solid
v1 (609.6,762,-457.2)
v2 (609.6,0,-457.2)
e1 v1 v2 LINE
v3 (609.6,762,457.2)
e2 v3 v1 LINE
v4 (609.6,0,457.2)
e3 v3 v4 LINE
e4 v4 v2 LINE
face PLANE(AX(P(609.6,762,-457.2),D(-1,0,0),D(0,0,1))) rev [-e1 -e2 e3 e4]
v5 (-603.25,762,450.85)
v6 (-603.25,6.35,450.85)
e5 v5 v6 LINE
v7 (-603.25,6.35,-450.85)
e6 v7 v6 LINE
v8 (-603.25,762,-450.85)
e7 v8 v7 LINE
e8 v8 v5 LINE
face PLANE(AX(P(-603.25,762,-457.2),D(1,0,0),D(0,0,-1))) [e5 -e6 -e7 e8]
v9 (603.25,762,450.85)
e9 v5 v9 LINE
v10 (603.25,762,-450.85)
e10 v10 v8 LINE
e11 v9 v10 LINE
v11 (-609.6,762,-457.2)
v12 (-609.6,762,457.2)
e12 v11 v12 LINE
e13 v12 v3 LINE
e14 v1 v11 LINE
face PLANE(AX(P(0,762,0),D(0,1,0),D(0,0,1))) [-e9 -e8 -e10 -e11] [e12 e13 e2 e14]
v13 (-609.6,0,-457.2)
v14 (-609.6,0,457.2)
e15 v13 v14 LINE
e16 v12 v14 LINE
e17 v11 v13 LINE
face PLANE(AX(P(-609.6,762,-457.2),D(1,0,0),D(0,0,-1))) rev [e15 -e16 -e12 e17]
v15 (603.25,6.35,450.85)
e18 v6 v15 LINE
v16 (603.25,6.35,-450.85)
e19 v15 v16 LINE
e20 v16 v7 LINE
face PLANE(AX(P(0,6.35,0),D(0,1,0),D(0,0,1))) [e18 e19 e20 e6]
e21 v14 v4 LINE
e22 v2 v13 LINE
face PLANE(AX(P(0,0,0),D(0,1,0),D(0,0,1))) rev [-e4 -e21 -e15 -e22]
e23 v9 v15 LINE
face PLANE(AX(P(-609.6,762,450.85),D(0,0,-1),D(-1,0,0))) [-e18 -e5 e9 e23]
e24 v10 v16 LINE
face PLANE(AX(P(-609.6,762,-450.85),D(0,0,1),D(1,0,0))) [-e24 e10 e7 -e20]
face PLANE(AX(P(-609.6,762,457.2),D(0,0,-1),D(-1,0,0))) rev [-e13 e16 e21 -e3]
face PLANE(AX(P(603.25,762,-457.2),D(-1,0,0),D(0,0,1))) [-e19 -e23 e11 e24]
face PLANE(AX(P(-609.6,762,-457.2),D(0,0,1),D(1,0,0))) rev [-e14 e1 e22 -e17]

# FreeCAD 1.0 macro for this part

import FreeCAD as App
import Part
import Sketcher

V = App.Vector
Q = App.Units.Quantity


def faces_at(feature, points):
    """Names of the faces that lie closest to the given points."""
    faces = feature.Shape.Faces
    near = lambda p: min(range(len(faces)), key=lambda i: faces[i].distToShape(Part.Vertex(*p))[0])
    return sorted({f"Face{near(p) + 1}" for p in points})

doc = App.newDocument("Part")
params = doc.addObject("Spreadsheet::Sheet", "Params")
for row, (alias, value) in enumerate([
    ("sketch1_width", "48 in"),
    ("sketch1_height", "36 in"),
    ("pad1_length", "30 in"),
    ("thickness_wall", "0.25 in"),
], start=1):
    params.set(f"A{row}", alias)
    params.set(f"B{row}", "=" + value)
    params.setAlias(f"B{row}", alias)

body = doc.addObject("PartDesign::Body", "Body")

sketch1 = body.newObject("Sketcher::SketchObject", "Sketch")
sketch1.AttachmentSupport = (doc.getObject("XZ_Plane"), [""])
sketch1.MapMode = "FlatFace"
sketch1.addGeometry(Part.LineSegment(V(-610, -457, 0), V(-610, 457, 0)), False)
sketch1.addGeometry(Part.LineSegment(V(-610, 457, 0), V(610, 457, 0)), False)
sketch1.addGeometry(Part.LineSegment(V(610, 457, 0), V(610, -457, 0)), False)
sketch1.addGeometry(Part.LineSegment(V(610, -457, 0), V(-610, -457, 0)), False)
sketch1.addConstraint(Sketcher.Constraint("Coincident", 0, 2, 1, 1))
sketch1.addConstraint(Sketcher.Constraint("Coincident", 1, 2, 2, 1))
sketch1.addConstraint(Sketcher.Constraint("Coincident", 2, 2, 3, 1))
sketch1.addConstraint(Sketcher.Constraint("Coincident", 3, 2, 0, 1))
sketch1.addConstraint(Sketcher.Constraint("Vertical", 0))
sketch1.addConstraint(Sketcher.Constraint("Horizontal", 1))
sketch1.addConstraint(Sketcher.Constraint("Vertical", 2))
sketch1.addConstraint(Sketcher.Constraint("Horizontal", 3))
sketch1.addConstraint(Sketcher.Constraint("Symmetric", 0, 2, 2, 2, -1, 1))
sketch1.addConstraint(Sketcher.Constraint("DistanceX", 1, 1, 1, 2, Q("48 in")))
sketch1.addConstraint(Sketcher.Constraint("DistanceY", 0, 1, 0, 2, Q("36 in")))
sketch1.setExpression("Constraints[9]", "Params.sketch1_width")
sketch1.setExpression("Constraints[10]", "Params.sketch1_height")
pad1 = body.newObject("PartDesign::Pad", "Pad")
pad1.Profile = sketch1
pad1.setExpression("Length", "Params.pad1_length")
pad1.Reversed = True
doc.recompute()

thickness = body.newObject("PartDesign::Thickness", "Thickness")
thickness.Base = (pad1, faces_at(pad1, [(0, 762, 0)]))
thickness.setExpression("Value", "Params.thickness_wall")
thickness.Reversed = True
thickness.Join = "Intersection"

doc.recompute()
